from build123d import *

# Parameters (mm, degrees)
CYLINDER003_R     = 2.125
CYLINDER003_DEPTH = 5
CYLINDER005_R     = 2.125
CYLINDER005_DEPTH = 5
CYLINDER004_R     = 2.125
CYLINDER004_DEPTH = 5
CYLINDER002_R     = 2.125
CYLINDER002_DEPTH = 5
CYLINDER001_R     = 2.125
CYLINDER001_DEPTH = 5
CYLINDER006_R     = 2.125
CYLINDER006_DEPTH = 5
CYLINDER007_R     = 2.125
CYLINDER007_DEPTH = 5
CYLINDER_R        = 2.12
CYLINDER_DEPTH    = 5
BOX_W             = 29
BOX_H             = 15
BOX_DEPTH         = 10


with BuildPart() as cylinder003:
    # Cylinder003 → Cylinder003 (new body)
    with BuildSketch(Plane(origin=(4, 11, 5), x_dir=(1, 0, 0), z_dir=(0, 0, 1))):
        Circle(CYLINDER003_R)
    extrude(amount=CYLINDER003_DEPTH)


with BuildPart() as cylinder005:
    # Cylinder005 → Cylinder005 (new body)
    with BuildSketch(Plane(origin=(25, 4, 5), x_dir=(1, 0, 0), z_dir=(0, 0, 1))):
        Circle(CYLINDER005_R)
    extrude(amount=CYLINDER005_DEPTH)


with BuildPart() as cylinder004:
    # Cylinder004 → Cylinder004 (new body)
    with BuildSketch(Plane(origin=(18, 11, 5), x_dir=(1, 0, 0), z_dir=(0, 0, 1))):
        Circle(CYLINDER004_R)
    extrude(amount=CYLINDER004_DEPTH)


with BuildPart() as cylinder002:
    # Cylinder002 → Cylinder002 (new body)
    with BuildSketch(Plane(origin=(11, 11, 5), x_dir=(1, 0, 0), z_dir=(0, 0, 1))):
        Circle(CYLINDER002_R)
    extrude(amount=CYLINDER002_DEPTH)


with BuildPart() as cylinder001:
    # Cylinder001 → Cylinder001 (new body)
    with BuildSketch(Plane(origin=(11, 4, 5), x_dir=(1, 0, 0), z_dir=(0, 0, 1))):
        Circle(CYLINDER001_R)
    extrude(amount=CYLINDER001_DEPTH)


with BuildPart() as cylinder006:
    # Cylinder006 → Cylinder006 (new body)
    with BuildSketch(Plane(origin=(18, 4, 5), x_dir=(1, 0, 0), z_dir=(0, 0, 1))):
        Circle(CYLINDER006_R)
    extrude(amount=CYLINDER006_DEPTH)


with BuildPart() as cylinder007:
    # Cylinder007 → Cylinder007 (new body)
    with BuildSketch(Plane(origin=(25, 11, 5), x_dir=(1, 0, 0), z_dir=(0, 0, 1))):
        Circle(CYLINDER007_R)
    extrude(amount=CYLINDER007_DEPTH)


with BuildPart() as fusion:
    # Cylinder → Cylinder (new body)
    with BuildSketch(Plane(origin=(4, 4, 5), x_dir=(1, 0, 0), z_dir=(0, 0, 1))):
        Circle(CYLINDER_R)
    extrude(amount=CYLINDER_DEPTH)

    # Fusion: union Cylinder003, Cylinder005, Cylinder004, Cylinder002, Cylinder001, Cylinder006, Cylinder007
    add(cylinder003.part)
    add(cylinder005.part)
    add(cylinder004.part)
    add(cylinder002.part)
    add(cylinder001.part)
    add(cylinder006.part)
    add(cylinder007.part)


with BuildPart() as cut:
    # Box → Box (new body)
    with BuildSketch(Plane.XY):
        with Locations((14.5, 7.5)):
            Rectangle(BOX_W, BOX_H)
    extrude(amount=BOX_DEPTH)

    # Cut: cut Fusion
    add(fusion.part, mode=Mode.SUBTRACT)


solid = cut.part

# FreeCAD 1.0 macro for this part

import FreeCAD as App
import Part
import Sketcher


def add_polygon(sketch, points):
    """Adds a closed chain of lines whose ends are joined by coincident constraints."""
    first, n = sketch.GeometryCount, len(points)
    for a, b in zip(points, points[1:] + points[:1]):
        sketch.addGeometry(Part.LineSegment(App.Vector(*a, 0), App.Vector(*b, 0)), False)
    for i in range(n):
        sketch.addConstraint(Sketcher.Constraint("Coincident", first + i, 2, first + (i + 1) % n, 1))

doc = App.newDocument("Part")
body = doc.addObject("PartDesign::Body", "Body")

# Sketch on XY plane
sketch1 = doc.addObject("Sketcher::SketchObject", "Sketch")
body.addObject(sketch1)
sketch1.AttachmentSupport = (doc.XY_Plane, [""])
sketch1.MapMode = "FlatFace"
sketch1.AttachmentOffset = App.Placement(App.Vector(0, 0, 5), App.Rotation())
sketch1.addGeometry(Part.Circle(App.Vector(4, 11, 0), App.Vector(0, 0, 1), 2.1), False)
sketch1.addConstraint([
    Sketcher.Constraint("Diameter", 0, 4.25),
    Sketcher.Constraint("DistanceX", -1, 1, 0, 3, 4.0),
    Sketcher.Constraint("DistanceY", -1, 1, 0, 3, 11.0),
])
pad1 = doc.addObject("PartDesign::Pad", "Pad")
body.addObject(pad1)
pad1.Profile = sketch1
pad1.Length = 5
body2 = doc.addObject("PartDesign::Body", "Body001")

# Sketch on XY plane
sketch2 = doc.addObject("Sketcher::SketchObject", "Sketch001")
body2.addObject(sketch2)
sketch2.AttachmentSupport = (doc.getObject("XY_Plane001"), [""])
sketch2.MapMode = "FlatFace"
sketch2.AttachmentOffset = App.Placement(App.Vector(0, 0, 5), App.Rotation())
sketch2.addGeometry(Part.Circle(App.Vector(25, 4, 0), App.Vector(0, 0, 1), 2.1), False)
sketch2.addConstraint([
    Sketcher.Constraint("Diameter", 0, 4.25),
    Sketcher.Constraint("DistanceX", -1, 1, 0, 3, 25.0),
    Sketcher.Constraint("DistanceY", -1, 1, 0, 3, 4.0),
])
pad2 = doc.addObject("PartDesign::Pad", "Pad001")
body2.addObject(pad2)
pad2.Profile = sketch2
pad2.Length = 5
body3 = doc.addObject("PartDesign::Body", "Body002")

# Sketch on XY plane
sketch3 = doc.addObject("Sketcher::SketchObject", "Sketch002")
body3.addObject(sketch3)
sketch3.AttachmentSupport = (doc.getObject("XY_Plane002"), [""])
sketch3.MapMode = "FlatFace"
sketch3.AttachmentOffset = App.Placement(App.Vector(0, 0, 5), App.Rotation())
sketch3.addGeometry(Part.Circle(App.Vector(18, 11, 0), App.Vector(0, 0, 1), 2.1), False)
sketch3.addConstraint([
    Sketcher.Constraint("Diameter", 0, 4.25),
    Sketcher.Constraint("DistanceX", -1, 1, 0, 3, 18.0),
    Sketcher.Constraint("DistanceY", -1, 1, 0, 3, 11.0),
])
pad3 = doc.addObject("PartDesign::Pad", "Pad002")
body3.addObject(pad3)
pad3.Profile = sketch3
pad3.Length = 5
body4 = doc.addObject("PartDesign::Body", "Body003")

# Sketch on XY plane
sketch4 = doc.addObject("Sketcher::SketchObject", "Sketch003")
body4.addObject(sketch4)
sketch4.AttachmentSupport = (doc.getObject("XY_Plane003"), [""])
sketch4.MapMode = "FlatFace"
sketch4.AttachmentOffset = App.Placement(App.Vector(0, 0, 5), App.Rotation())
sketch4.addGeometry(Part.Circle(App.Vector(11, 11, 0), App.Vector(0, 0, 1), 2.1), False)
sketch4.addConstraint([
    Sketcher.Constraint("Diameter", 0, 4.25),
    Sketcher.Constraint("DistanceX", -1, 1, 0, 3, 11.0),
    Sketcher.Constraint("DistanceY", -1, 1, 0, 3, 11.0),
])
pad4 = doc.addObject("PartDesign::Pad", "Pad003")
body4.addObject(pad4)
pad4.Profile = sketch4
pad4.Length = 5
body5 = doc.addObject("PartDesign::Body", "Body004")

# Sketch on XY plane
sketch5 = doc.addObject("Sketcher::SketchObject", "Sketch004")
body5.addObject(sketch5)
sketch5.AttachmentSupport = (doc.getObject("XY_Plane004"), [""])
sketch5.MapMode = "FlatFace"
sketch5.AttachmentOffset = App.Placement(App.Vector(0, 0, 5), App.Rotation())
sketch5.addGeometry(Part.Circle(App.Vector(11, 4, 0), App.Vector(0, 0, 1), 2.1), False)
sketch5.addConstraint([
    Sketcher.Constraint("Diameter", 0, 4.25),
    Sketcher.Constraint("DistanceX", -1, 1, 0, 3, 11.0),
    Sketcher.Constraint("DistanceY", -1, 1, 0, 3, 4.0),
])
pad5 = doc.addObject("PartDesign::Pad", "Pad004")
body5.addObject(pad5)
pad5.Profile = sketch5
pad5.Length = 5
body6 = doc.addObject("PartDesign::Body", "Body005")

# Sketch on XY plane
sketch6 = doc.addObject("Sketcher::SketchObject", "Sketch005")
body6.addObject(sketch6)
sketch6.AttachmentSupport = (doc.getObject("XY_Plane005"), [""])
sketch6.MapMode = "FlatFace"
sketch6.AttachmentOffset = App.Placement(App.Vector(0, 0, 5), App.Rotation())
sketch6.addGeometry(Part.Circle(App.Vector(18, 4, 0), App.Vector(0, 0, 1), 2.1), False)
sketch6.addConstraint([
    Sketcher.Constraint("Diameter", 0, 4.25),
    Sketcher.Constraint("DistanceX", -1, 1, 0, 3, 18.0),
    Sketcher.Constraint("DistanceY", -1, 1, 0, 3, 4.0),
])
pad6 = doc.addObject("PartDesign::Pad", "Pad005")
body6.addObject(pad6)
pad6.Profile = sketch6
pad6.Length = 5
body7 = doc.addObject("PartDesign::Body", "Body006")

# Sketch on XY plane
sketch7 = doc.addObject("Sketcher::SketchObject", "Sketch006")
body7.addObject(sketch7)
sketch7.AttachmentSupport = (doc.getObject("XY_Plane006"), [""])
sketch7.MapMode = "FlatFace"
sketch7.AttachmentOffset = App.Placement(App.Vector(0, 0, 5), App.Rotation())
sketch7.addGeometry(Part.Circle(App.Vector(25, 11, 0), App.Vector(0, 0, 1), 2.1), False)
sketch7.addConstraint([
    Sketcher.Constraint("Diameter", 0, 4.25),
    Sketcher.Constraint("DistanceX", -1, 1, 0, 3, 25.0),
    Sketcher.Constraint("DistanceY", -1, 1, 0, 3, 11.0),
])
pad7 = doc.addObject("PartDesign::Pad", "Pad006")
body7.addObject(pad7)
pad7.Profile = sketch7
pad7.Length = 5
body8 = doc.addObject("PartDesign::Body", "Body007")
body8.AllowCompound = True

# Sketch on XY plane
sketch8 = doc.addObject("Sketcher::SketchObject", "Sketch007")
body8.addObject(sketch8)
sketch8.AttachmentSupport = (doc.getObject("XY_Plane007"), [""])
sketch8.MapMode = "FlatFace"
sketch8.AttachmentOffset = App.Placement(App.Vector(0, 0, 5), App.Rotation())
sketch8.addGeometry(Part.Circle(App.Vector(4, 4, 0), App.Vector(0, 0, 1), 2.1), False)
sketch8.addConstraint([
    Sketcher.Constraint("Diameter", 0, 4.24),
    Sketcher.Constraint("DistanceX", -1, 1, 0, 3, 4.0),
    Sketcher.Constraint("DistanceY", -1, 1, 0, 3, 4.0),
])
pad8 = doc.addObject("PartDesign::Pad", "Pad007")
body8.addObject(pad8)
pad8.Profile = sketch8
pad8.Length = 5
doc.recompute()

boolean = doc.addObject("PartDesign::Boolean", "Boolean")
body8.addObject(boolean)
boolean.Type = "Fuse"
boolean.addObjects([body])
doc.recompute()

boolean2 = doc.addObject("PartDesign::Boolean", "Boolean001")
body8.addObject(boolean2)
boolean2.Type = "Fuse"
boolean2.addObjects([body2])
doc.recompute()

boolean3 = doc.addObject("PartDesign::Boolean", "Boolean002")
body8.addObject(boolean3)
boolean3.Type = "Fuse"
boolean3.addObjects([body3])
doc.recompute()

boolean4 = doc.addObject("PartDesign::Boolean", "Boolean003")
body8.addObject(boolean4)
boolean4.Type = "Fuse"
boolean4.addObjects([body4])
doc.recompute()

boolean5 = doc.addObject("PartDesign::Boolean", "Boolean004")
body8.addObject(boolean5)
boolean5.Type = "Fuse"
boolean5.addObjects([body5])
doc.recompute()

boolean6 = doc.addObject("PartDesign::Boolean", "Boolean005")
body8.addObject(boolean6)
boolean6.Type = "Fuse"
boolean6.addObjects([body6])
doc.recompute()

boolean7 = doc.addObject("PartDesign::Boolean", "Boolean006")
body8.addObject(boolean7)
boolean7.Type = "Fuse"
boolean7.addObjects([body7])
body9 = doc.addObject("PartDesign::Body", "Body008")

# Sketch on XY plane
sketch9 = doc.addObject("Sketcher::SketchObject", "Sketch008")
body9.addObject(sketch9)
sketch9.AttachmentSupport = (doc.getObject("XY_Plane008"), [""])
sketch9.MapMode = "FlatFace"
add_polygon(sketch9, [(0, 15), (0, 0), (29, 0), (29, 15)])  # lines 0-3
sketch9.addConstraint([
    Sketcher.Constraint("Vertical", 0),
    Sketcher.Constraint("Horizontal", 1),
    Sketcher.Constraint("Vertical", 2),
    Sketcher.Constraint("Horizontal", 3),
    Sketcher.Constraint("Coincident", 0, 2, -1, 1),
    Sketcher.Constraint("DistanceX", 1, 1, 1, 2, 29.0),
    Sketcher.Constraint("DistanceY", 0, 2, 0, 1, 15.0),
])
pad9 = doc.addObject("PartDesign::Pad", "Pad008")
body9.addObject(pad9)
pad9.Profile = sketch9
pad9.Length = 10
doc.recompute()

boolean8 = doc.addObject("PartDesign::Boolean", "Boolean007")
body9.addObject(boolean8)
boolean8.Type = "Cut"
boolean8.addObjects([body8])

doc.recompute()
